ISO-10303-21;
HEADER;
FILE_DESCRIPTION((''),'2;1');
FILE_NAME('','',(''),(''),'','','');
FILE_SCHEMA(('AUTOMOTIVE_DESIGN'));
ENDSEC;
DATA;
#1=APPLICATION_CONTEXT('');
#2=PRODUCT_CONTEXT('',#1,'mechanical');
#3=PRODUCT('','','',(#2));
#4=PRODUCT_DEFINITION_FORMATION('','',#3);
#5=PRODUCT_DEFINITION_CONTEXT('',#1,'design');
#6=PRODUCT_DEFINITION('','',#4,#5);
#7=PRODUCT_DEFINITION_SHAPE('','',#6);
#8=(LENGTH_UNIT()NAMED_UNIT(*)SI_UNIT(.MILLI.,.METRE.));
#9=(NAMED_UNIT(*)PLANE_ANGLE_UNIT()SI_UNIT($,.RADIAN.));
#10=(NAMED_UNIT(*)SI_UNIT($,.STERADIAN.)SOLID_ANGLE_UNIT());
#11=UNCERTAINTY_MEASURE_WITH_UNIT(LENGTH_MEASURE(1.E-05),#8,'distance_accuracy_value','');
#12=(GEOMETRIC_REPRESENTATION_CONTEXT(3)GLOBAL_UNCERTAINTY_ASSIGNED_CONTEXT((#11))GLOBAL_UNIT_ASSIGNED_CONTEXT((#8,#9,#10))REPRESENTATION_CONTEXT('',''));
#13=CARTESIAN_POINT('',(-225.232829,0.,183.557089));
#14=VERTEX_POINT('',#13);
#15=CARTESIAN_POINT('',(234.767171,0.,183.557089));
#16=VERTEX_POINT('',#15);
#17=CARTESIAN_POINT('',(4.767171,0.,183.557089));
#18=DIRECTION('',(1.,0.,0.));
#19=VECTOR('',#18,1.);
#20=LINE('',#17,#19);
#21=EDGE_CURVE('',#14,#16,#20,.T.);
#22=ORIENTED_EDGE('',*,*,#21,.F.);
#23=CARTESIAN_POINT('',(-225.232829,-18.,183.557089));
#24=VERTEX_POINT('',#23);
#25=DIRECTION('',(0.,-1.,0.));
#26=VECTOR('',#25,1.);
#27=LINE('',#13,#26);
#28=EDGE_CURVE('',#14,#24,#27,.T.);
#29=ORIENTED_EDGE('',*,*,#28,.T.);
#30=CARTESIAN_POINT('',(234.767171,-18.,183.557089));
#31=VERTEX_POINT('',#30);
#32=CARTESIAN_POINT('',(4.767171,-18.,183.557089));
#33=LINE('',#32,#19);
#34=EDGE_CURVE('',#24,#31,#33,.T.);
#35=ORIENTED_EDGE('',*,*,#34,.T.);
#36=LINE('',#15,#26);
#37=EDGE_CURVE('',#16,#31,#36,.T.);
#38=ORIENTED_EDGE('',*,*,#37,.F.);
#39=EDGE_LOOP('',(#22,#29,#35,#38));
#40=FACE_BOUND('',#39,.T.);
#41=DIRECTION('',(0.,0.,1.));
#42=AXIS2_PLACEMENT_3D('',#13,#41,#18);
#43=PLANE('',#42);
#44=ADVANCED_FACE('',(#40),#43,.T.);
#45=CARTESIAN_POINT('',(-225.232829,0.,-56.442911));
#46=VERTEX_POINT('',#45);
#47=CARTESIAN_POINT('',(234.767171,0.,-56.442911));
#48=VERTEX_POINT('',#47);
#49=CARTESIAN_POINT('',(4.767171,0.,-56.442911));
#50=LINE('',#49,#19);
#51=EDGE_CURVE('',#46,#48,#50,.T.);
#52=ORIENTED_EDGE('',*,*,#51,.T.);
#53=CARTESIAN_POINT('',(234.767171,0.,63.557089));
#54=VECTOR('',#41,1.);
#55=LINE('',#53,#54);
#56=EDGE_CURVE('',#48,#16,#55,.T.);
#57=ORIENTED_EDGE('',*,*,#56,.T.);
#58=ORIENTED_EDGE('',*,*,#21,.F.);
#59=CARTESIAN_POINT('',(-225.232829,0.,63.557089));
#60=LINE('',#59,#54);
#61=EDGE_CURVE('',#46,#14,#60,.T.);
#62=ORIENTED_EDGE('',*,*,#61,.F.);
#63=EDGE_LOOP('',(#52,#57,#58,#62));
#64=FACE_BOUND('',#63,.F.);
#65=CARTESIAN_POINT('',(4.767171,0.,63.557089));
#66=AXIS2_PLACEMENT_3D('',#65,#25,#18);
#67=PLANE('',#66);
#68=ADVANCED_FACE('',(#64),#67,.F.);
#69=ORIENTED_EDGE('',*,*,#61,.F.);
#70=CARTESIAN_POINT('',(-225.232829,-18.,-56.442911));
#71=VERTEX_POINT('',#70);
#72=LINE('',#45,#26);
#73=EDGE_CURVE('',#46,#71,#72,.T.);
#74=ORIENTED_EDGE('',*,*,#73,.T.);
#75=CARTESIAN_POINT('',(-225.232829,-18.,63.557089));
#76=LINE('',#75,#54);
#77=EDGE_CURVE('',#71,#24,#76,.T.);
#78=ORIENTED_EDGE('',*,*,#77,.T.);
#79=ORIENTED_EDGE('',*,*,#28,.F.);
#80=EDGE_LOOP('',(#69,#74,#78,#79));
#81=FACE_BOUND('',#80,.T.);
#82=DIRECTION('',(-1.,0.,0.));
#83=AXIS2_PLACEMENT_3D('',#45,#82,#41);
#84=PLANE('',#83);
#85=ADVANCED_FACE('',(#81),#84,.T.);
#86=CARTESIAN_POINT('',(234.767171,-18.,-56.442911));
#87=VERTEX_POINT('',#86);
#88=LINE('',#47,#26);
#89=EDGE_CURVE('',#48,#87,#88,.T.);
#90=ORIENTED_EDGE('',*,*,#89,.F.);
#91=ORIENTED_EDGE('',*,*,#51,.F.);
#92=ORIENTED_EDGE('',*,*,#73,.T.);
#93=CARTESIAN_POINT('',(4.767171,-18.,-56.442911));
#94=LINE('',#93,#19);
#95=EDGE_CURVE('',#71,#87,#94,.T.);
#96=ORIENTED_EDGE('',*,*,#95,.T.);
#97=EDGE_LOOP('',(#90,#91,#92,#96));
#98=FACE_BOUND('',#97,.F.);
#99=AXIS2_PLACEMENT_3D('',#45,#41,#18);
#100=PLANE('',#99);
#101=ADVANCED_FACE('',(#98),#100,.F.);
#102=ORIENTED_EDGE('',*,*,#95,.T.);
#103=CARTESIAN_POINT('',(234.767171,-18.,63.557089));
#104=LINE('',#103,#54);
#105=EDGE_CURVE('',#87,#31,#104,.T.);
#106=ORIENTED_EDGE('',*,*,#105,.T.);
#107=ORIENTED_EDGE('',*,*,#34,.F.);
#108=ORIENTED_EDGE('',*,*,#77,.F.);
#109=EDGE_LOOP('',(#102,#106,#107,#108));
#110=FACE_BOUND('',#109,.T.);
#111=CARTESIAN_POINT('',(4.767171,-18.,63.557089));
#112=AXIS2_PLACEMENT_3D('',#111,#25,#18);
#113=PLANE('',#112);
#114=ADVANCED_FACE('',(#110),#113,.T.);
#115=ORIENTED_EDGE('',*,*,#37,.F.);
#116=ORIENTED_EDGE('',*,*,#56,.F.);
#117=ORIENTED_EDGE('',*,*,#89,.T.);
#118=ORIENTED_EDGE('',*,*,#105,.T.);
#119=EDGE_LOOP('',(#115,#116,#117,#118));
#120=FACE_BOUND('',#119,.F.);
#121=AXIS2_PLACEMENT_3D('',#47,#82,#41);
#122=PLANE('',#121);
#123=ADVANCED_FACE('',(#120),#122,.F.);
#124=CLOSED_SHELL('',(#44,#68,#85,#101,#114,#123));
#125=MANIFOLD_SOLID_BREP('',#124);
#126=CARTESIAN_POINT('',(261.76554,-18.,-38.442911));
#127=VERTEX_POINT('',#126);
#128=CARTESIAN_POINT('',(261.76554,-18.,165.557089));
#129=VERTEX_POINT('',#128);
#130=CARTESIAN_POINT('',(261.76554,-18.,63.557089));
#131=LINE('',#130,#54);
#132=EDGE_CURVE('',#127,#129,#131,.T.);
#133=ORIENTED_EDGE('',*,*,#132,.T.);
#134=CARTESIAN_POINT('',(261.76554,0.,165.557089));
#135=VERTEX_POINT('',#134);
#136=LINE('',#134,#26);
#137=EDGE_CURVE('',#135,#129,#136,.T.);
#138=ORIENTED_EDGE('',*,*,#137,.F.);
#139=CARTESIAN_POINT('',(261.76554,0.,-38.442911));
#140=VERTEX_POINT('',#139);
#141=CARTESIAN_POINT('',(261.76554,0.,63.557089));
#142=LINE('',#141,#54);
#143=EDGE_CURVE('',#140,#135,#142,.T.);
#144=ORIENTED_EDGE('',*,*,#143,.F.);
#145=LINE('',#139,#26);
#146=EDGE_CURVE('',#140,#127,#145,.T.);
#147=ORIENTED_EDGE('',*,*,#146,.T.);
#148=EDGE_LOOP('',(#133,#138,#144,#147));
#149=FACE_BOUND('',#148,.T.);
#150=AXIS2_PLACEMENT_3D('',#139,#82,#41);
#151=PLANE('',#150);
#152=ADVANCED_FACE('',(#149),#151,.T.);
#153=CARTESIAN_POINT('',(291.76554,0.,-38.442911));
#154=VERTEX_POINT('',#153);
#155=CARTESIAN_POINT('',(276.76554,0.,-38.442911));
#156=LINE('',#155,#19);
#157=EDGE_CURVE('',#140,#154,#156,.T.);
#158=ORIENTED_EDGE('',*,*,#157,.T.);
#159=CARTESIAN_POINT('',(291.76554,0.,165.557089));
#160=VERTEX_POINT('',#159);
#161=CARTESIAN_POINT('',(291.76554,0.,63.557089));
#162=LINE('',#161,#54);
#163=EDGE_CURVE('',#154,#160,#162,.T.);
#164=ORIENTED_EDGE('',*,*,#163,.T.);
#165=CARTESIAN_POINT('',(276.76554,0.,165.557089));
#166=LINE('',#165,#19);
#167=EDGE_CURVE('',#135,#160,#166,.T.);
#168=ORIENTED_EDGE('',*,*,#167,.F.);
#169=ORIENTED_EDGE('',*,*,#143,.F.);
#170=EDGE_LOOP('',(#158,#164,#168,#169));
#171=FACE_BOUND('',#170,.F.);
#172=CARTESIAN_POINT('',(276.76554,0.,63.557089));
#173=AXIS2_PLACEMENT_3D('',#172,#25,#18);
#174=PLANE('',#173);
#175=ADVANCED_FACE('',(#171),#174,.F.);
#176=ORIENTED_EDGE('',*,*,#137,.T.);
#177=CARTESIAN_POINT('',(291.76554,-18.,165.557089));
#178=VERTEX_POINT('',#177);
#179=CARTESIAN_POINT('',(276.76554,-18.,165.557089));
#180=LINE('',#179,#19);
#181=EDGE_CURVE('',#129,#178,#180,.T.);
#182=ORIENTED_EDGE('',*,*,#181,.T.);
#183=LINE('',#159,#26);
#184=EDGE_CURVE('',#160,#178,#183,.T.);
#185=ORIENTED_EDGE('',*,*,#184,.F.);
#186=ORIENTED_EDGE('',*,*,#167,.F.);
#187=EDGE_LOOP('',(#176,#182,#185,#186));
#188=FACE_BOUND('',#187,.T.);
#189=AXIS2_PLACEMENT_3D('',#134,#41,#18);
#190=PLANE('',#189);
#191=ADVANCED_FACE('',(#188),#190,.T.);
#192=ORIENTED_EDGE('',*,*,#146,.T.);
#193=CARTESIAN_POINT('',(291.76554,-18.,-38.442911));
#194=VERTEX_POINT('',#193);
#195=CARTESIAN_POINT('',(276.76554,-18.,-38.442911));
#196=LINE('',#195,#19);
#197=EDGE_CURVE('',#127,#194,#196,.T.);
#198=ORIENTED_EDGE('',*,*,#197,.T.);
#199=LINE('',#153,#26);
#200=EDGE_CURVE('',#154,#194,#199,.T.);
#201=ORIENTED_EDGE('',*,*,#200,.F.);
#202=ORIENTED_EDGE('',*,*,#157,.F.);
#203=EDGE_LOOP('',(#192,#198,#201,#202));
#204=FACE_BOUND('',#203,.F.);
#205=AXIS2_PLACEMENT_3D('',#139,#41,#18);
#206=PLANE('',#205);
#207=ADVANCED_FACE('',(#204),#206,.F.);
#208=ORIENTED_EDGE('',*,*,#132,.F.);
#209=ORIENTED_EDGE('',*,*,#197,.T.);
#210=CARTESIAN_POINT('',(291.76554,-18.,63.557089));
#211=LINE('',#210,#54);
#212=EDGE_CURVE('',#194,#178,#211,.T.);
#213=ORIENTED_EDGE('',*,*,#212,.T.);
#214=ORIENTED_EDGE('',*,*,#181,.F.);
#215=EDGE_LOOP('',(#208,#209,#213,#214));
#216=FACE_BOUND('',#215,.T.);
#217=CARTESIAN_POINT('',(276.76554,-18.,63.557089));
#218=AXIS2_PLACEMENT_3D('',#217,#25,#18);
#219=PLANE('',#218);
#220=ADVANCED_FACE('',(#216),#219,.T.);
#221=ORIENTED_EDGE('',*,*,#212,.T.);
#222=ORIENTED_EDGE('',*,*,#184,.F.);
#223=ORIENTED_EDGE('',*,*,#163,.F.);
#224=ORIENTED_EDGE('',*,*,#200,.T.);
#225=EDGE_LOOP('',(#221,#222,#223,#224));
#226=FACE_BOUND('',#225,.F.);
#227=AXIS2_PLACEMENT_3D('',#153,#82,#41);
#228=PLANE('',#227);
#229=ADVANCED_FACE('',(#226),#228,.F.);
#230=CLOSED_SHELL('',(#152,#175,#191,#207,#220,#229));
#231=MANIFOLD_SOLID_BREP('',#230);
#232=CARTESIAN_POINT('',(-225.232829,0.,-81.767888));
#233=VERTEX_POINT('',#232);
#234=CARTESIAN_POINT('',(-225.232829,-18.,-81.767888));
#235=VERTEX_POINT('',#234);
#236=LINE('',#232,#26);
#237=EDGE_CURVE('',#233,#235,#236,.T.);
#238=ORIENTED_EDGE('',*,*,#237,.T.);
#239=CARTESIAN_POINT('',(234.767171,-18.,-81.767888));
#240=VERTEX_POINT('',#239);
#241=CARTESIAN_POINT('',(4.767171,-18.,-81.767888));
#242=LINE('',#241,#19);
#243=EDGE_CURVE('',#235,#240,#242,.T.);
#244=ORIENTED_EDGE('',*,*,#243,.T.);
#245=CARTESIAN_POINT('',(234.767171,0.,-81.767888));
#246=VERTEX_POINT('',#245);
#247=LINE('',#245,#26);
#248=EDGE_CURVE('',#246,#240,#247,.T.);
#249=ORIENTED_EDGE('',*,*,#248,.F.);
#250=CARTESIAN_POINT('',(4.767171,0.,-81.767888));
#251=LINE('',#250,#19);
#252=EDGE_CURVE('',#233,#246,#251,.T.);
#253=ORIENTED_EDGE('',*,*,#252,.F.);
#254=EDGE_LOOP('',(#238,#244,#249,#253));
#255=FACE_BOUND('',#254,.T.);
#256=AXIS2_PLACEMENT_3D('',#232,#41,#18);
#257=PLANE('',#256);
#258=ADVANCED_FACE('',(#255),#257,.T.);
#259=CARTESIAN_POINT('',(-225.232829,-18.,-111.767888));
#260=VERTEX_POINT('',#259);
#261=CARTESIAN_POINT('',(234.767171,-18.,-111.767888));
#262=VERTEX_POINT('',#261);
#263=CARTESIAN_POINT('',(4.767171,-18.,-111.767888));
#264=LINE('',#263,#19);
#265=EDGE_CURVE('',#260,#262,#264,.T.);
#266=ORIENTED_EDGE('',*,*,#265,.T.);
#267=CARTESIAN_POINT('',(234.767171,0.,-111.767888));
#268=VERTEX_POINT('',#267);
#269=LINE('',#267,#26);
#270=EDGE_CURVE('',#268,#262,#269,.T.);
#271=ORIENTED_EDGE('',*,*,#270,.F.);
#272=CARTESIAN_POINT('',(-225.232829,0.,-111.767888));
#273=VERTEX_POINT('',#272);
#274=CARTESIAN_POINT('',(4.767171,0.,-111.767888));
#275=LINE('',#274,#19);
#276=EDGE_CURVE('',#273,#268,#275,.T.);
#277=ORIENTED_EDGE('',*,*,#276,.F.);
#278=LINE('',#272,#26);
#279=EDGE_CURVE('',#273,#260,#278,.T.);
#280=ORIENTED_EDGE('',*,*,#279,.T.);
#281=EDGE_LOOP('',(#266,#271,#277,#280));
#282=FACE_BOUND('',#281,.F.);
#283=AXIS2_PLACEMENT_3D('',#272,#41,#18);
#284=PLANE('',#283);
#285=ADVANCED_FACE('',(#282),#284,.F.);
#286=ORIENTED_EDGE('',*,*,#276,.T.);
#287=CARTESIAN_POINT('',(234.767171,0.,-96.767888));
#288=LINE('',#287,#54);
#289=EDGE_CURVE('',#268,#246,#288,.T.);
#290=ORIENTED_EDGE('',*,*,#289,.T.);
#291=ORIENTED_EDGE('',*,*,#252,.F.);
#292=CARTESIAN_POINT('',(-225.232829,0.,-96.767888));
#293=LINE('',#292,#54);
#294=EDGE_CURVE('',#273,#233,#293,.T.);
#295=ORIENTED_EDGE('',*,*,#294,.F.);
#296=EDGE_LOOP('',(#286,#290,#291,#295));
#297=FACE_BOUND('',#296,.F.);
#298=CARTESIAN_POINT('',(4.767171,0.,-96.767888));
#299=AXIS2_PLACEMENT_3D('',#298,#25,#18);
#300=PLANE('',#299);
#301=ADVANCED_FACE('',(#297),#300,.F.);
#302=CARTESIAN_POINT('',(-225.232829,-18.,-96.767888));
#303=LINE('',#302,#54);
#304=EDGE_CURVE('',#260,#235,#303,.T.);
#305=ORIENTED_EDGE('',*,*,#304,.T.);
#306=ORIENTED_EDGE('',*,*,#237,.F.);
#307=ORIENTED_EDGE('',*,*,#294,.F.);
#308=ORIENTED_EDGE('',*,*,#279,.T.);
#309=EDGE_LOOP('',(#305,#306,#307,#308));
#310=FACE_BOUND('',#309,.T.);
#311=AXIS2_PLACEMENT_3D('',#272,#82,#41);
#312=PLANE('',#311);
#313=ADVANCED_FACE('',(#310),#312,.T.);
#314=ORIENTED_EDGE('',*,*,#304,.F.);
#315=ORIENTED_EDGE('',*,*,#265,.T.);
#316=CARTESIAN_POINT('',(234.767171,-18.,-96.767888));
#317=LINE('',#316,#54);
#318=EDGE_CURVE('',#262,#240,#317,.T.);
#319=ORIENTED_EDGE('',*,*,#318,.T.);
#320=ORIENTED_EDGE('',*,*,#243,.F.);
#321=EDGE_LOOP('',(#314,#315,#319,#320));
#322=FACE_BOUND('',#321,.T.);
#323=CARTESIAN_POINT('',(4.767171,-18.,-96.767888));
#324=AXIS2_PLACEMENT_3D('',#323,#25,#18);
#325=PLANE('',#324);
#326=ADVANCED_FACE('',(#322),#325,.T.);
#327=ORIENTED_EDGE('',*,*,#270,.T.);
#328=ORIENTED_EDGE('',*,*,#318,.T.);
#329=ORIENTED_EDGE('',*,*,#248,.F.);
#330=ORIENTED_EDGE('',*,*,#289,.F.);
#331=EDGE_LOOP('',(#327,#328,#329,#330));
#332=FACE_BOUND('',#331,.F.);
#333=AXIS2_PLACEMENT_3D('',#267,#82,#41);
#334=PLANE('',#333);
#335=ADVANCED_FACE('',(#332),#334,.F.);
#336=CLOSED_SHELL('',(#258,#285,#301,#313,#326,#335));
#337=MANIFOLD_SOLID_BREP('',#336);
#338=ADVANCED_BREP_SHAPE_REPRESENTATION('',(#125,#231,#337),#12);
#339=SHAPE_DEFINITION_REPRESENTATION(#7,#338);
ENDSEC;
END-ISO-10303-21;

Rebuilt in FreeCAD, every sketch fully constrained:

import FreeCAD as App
import Part
import Sketcher

doc = App.newDocument("Part")
body = doc.addObject("PartDesign::Body", "Body")
body.AllowCompound = True

sketch1 = body.newObject("Sketcher::SketchObject", "Sketch")
sketch1.AttachmentSupport = (doc.getObject("XZ_Plane"), [""])
sketch1.MapMode = "FlatFace"
sketch1.addGeometry([
    Part.LineSegment(App.Vector(-225, 184, 0), App.Vector(-225, -56, 0)),
    Part.LineSegment(App.Vector(-225, -56, 0), App.Vector(235, -56, 0)),
    Part.LineSegment(App.Vector(235, -56, 0), App.Vector(235, 184, 0)),
    Part.LineSegment(App.Vector(235, 184, 0), App.Vector(-225, 184, 0)),
    Part.LineSegment(App.Vector(-225, -82, 0), App.Vector(-225, -112, 0)),
    Part.LineSegment(App.Vector(-225, -112, 0), App.Vector(235, -112, 0)),
    Part.LineSegment(App.Vector(235, -112, 0), App.Vector(235, -82, 0)),
    Part.LineSegment(App.Vector(235, -82, 0), App.Vector(-225, -82, 0)),
    Part.LineSegment(App.Vector(262, 166, 0), App.Vector(262, -38, 0)),
    Part.LineSegment(App.Vector(262, -38, 0), App.Vector(292, -38, 0)),
    Part.LineSegment(App.Vector(292, -38, 0), App.Vector(292, 166, 0)),
    Part.LineSegment(App.Vector(292, 166, 0), App.Vector(262, 166, 0)),
], False)
sketch1.addConstraint([
    Sketcher.Constraint("Coincident", 0, 2, 1, 1),
    Sketcher.Constraint("Coincident", 1, 2, 2, 1),
    Sketcher.Constraint("Coincident", 2, 2, 3, 1),
    Sketcher.Constraint("Coincident", 3, 2, 0, 1),
    Sketcher.Constraint("Coincident", 4, 2, 5, 1),
    Sketcher.Constraint("Coincident", 5, 2, 6, 1),
    Sketcher.Constraint("Coincident", 6, 2, 7, 1),
    Sketcher.Constraint("Coincident", 7, 2, 4, 1),
    Sketcher.Constraint("Coincident", 8, 2, 9, 1),
    Sketcher.Constraint("Coincident", 9, 2, 10, 1),
    Sketcher.Constraint("Coincident", 10, 2, 11, 1),
    Sketcher.Constraint("Coincident", 11, 2, 8, 1),
    Sketcher.Constraint("Vertical", 0),
    Sketcher.Constraint("Horizontal", 1),
    Sketcher.Constraint("Vertical", 2),
    Sketcher.Constraint("Horizontal", 3),
    Sketcher.Constraint("Vertical", 4),
    Sketcher.Constraint("Horizontal", 5),
    Sketcher.Constraint("Vertical", 6),
    Sketcher.Constraint("Horizontal", 7),
    Sketcher.Constraint("Vertical", 8),
    Sketcher.Constraint("Horizontal", 9),
    Sketcher.Constraint("Vertical", 10),
    Sketcher.Constraint("Horizontal", 11),
    Sketcher.Constraint("Vertical", 3, 2, 4, 2),
    Sketcher.Constraint("Vertical", 2, 2, 5, 2),
    Sketcher.Constraint("Equal", 11, 4),
    Sketcher.Constraint("DistanceX", 1, 1, 1, 2, 460.0),
    Sketcher.Constraint("DistanceX", 9, 1, 9, 2, 30.0),
    Sketcher.Constraint("DistanceY", 0, 2, 0, 1, 240.0),
    Sketcher.Constraint("DistanceY", 8, 2, 8, 1, 204.0),
    Sketcher.Constraint("DistanceY", 1, 2, 8, 2, 18.0),
    Sketcher.Constraint("DistanceX", 0, 2, -1, 1, 225.232829),
    Sketcher.Constraint("DistanceY", 0, 2, -1, 1, 56.442911),
    Sketcher.Constraint("DistanceY", 4, 2, -1, 1, 111.767888),
    Sketcher.Constraint("DistanceX", -1, 1, 8, 2, 261.76554),
])
pad1 = body.newObject("PartDesign::Pad", "Pad")
pad1.Profile = sketch1
pad1.Length = 18

doc.recompute()
